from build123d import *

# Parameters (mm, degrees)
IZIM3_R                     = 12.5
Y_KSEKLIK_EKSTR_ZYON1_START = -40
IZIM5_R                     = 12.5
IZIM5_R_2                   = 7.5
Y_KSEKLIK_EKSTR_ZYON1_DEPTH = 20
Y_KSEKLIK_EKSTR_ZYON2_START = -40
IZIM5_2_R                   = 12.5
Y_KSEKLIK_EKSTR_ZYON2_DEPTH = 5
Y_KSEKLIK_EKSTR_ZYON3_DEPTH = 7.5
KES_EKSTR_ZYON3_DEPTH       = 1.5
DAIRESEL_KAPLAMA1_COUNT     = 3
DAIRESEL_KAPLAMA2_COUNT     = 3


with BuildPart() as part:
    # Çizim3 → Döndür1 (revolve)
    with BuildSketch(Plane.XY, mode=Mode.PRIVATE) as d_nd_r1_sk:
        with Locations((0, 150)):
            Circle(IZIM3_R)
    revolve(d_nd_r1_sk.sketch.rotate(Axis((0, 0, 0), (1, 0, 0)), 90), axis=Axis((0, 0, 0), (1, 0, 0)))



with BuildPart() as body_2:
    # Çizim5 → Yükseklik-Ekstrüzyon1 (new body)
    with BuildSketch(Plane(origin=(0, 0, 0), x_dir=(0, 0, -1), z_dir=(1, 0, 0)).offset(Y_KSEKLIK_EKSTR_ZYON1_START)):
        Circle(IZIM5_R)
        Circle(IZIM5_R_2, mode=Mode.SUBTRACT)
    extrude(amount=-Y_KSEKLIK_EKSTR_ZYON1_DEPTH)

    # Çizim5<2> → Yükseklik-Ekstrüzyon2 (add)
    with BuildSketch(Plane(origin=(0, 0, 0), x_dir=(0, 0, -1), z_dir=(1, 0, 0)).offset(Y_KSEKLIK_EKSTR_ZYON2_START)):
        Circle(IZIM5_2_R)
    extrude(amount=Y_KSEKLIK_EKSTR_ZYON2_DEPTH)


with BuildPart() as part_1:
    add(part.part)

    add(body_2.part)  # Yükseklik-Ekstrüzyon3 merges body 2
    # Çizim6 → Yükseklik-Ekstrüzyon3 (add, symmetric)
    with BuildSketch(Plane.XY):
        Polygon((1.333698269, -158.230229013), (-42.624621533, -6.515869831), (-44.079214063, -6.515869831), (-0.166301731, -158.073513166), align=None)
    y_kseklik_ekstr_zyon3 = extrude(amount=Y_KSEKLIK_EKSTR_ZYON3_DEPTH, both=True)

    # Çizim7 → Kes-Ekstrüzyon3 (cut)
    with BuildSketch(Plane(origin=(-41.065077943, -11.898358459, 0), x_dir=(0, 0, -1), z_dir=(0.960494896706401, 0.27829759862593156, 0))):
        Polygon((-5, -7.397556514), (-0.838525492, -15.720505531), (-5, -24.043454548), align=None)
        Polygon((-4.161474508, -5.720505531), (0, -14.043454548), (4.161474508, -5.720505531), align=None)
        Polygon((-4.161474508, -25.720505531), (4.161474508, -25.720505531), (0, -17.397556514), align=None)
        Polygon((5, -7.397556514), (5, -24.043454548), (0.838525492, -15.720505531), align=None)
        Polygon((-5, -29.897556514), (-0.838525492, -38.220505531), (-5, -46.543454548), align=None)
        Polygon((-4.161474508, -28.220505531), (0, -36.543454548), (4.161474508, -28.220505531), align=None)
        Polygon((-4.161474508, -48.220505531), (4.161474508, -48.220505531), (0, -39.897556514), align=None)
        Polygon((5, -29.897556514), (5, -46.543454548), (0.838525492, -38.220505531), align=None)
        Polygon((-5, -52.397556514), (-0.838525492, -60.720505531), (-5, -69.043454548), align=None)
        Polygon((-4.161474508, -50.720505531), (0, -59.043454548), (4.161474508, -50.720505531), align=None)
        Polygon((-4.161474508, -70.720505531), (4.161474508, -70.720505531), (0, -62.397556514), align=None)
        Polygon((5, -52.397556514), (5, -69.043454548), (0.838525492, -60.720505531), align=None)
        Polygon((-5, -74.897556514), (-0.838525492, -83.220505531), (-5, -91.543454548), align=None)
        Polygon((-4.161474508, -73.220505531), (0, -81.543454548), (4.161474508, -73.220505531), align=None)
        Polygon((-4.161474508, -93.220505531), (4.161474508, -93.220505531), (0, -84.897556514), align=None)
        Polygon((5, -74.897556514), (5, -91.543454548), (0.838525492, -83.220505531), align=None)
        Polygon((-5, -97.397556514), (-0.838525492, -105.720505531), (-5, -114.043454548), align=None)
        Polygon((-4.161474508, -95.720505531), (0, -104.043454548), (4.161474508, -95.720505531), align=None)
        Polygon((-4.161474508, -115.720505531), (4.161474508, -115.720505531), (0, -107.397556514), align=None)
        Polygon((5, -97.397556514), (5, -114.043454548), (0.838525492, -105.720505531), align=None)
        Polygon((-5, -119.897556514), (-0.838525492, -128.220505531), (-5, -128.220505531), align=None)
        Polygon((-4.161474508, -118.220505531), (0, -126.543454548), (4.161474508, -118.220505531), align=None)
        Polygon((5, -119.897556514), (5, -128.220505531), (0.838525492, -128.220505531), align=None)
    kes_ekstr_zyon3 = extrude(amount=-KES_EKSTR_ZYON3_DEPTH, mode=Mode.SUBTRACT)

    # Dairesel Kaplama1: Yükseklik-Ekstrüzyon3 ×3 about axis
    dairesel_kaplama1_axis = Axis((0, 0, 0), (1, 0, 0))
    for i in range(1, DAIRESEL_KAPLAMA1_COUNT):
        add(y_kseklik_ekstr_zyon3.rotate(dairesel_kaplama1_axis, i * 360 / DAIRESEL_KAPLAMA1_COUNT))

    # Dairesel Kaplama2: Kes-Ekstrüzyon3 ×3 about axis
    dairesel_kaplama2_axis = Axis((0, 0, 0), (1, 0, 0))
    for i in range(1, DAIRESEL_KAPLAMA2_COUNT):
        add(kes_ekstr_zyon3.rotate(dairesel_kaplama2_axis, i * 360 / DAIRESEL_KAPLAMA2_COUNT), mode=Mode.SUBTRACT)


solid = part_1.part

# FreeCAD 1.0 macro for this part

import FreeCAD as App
import Part
import Sketcher

V = App.Vector

doc = App.newDocument("Part")
body = doc.addObject("PartDesign::Body", "Body")

# Sketch on XY plane
sketch1 = body.newObject("Sketcher::SketchObject", "Sketch")
sketch1.AttachmentSupport = (doc.getObject("XY_Plane"), [""])
sketch1.MapMode = "FlatFace"
sketch1.addGeometry(Part.Circle(V(0, 150, 0), V(0, 0, 1), 12), False)
sketch1.addConstraint(Sketcher.Constraint("PointOnObject", 0, 3, -2))
sketch1.addConstraint(Sketcher.Constraint("Diameter", 0, 25.0))
sketch1.addConstraint(Sketcher.Constraint("DistanceY", -1, 1, 0, 3, 150.0))
revolution = body.newObject("PartDesign::Revolution", "Revolution")
revolution.Profile = sketch1
revolution.ReferenceAxis = (sketch1, ["H_Axis"])
revolution.Angle = 360
body2 = doc.addObject("PartDesign::Body", "Body001")

# Sketch on YZ plane
sketch2 = body2.newObject("Sketcher::SketchObject", "Sketch001")
sketch2.AttachmentSupport = (doc.getObject("YZ_Plane001"), [""])
sketch2.MapMode = "FlatFace"
sketch2.AttachmentOffset = App.Placement(V(0, 0, -40), App.Rotation())
sketch2.addGeometry(Part.Circle(V(0, 0, 0), V(0, 0, 1), 12), False)
sketch2.addGeometry(Part.Circle(V(0, 0, 0), V(0, 0, 1), 8), False)
sketch2.addConstraint(Sketcher.Constraint("Coincident", 0, 3, -1, 1))
sketch2.addConstraint(Sketcher.Constraint("Coincident", 1, 3, -1, 1))
sketch2.addConstraint(Sketcher.Constraint("Diameter", 0, 25.0))
sketch2.addConstraint(Sketcher.Constraint("Diameter", 1, 15.0))
pad1 = body2.newObject("PartDesign::Pad", "Pad")
pad1.Profile = sketch2
pad1.Length = 20
pad1.Reversed = True

# Sketch on YZ plane
sketch3 = body2.newObject("Sketcher::SketchObject", "Sketch002")
sketch3.AttachmentSupport = (doc.getObject("YZ_Plane001"), [""])
sketch3.MapMode = "FlatFace"
sketch3.AttachmentOffset = App.Placement(V(0, 0, -40), App.Rotation())
sketch3.addGeometry(Part.Circle(V(0, 0, 0), V(0, 0, 1), 12), False)
sketch3.addConstraint(Sketcher.Constraint("Coincident", 0, 3, -1, 1))
sketch3.addConstraint(Sketcher.Constraint("Diameter", 0, 25.0))
pad2 = body2.newObject("PartDesign::Pad", "Pad001")
pad2.Profile = sketch3
pad2.Length = 5
body.AllowCompound = True
doc.recompute()

boolean = body.newObject("PartDesign::Boolean", "Boolean")
boolean.Type = "Fuse"
boolean.addObjects([body2])

# Sketch on XY plane
sketch4 = body.newObject("Sketcher::SketchObject", "Sketch003")
sketch4.AttachmentSupport = (doc.getObject("XY_Plane"), [""])
sketch4.MapMode = "FlatFace"
sketch4.addGeometry(Part.LineSegment(V(1.3, -158.2, 0), V(-42.6, -6.5, 0)), False)
sketch4.addGeometry(Part.LineSegment(V(-42.6, -6.5, 0), V(-44.1, -6.5, 0)), False)
sketch4.addGeometry(Part.LineSegment(V(-44.1, -6.5, 0), V(-0.2, -158.1, 0)), False)
sketch4.addGeometry(Part.LineSegment(V(-0.2, -158.1, 0), V(1.3, -158.2, 0)), False)
sketch4.addConstraint(Sketcher.Constraint("Coincident", 0, 2, 1, 1))
sketch4.addConstraint(Sketcher.Constraint("Coincident", 1, 2, 2, 1))
sketch4.addConstraint(Sketcher.Constraint("Coincident", 2, 2, 3, 1))
sketch4.addConstraint(Sketcher.Constraint("Coincident", 3, 2, 0, 1))
sketch4.addConstraint(Sketcher.Constraint("Horizontal", 1))
sketch4.addConstraint(Sketcher.Constraint("Parallel", 0, 2))
sketch4.addConstraint(Sketcher.Constraint("DistanceX", 2, 2, 3, 2, 1.5))
sketch4.addConstraint(Sketcher.Constraint("Distance", 2, 157.791201))
sketch4.addConstraint(Sketcher.Constraint("DistanceX", 2, 2, -1, 1, 0.166302))
sketch4.addConstraint(Sketcher.Constraint("DistanceX", 1, 2, 1, 1, 1.454593))
sketch4.addConstraint(Sketcher.Constraint("DistanceX", 0, 2, -1, 1, 42.624622))
sketch4.addConstraint(Sketcher.Constraint("DistanceY", 0, 2, -1, 1, 6.51587))
pad3 = body.newObject("PartDesign::Pad", "Pad002")
pad3.Profile = sketch4
pad3.Length = 15
pad3.Midplane = True

# Sketch on an angled plane
sketch5 = body.newObject("Sketcher::SketchObject", "Sketch004")
sketch5.Placement = App.Placement(V(-41.065078, -11.898358, 0), App.Rotation(V(0, 0, -1), V(-0.278297599, 0.960494897, 0), V(0.960494897, 0.278297599, 0), "ZXY"))
sketch5.addGeometry(Part.LineSegment(V(-0.8, -15.7, 0), V(-5, -7.4, 0)), False)
sketch5.addGeometry(Part.LineSegment(V(-5, -7.4, 0), V(-5, -24, 0)), False)
sketch5.addGeometry(Part.LineSegment(V(-5, -24, 0), V(-0.8, -15.7, 0)), False)
sketch5.addGeometry(Part.LineSegment(V(-4.2, -5.7, 0), V(0, -14, 0)), False)
sketch5.addGeometry(Part.LineSegment(V(0, -14, 0), V(4.2, -5.7, 0)), False)
sketch5.addGeometry(Part.LineSegment(V(4.2, -5.7, 0), V(-4.2, -5.7, 0)), False)
sketch5.addGeometry(Part.LineSegment(V(-4.2, -25.7, 0), V(4.2, -25.7, 0)), False)
sketch5.addGeometry(Part.LineSegment(V(4.2, -25.7, 0), V(0, -17.4, 0)), False)
sketch5.addGeometry(Part.LineSegment(V(0, -17.4, 0), V(-4.2, -25.7, 0)), False)
sketch5.addGeometry(Part.LineSegment(V(5, -24, 0), V(5, -7.4, 0)), False)
sketch5.addGeometry(Part.LineSegment(V(5, -7.4, 0), V(0.8, -15.7, 0)), False)
sketch5.addGeometry(Part.LineSegment(V(0.8, -15.7, 0), V(5, -24, 0)), False)
sketch5.addGeometry(Part.LineSegment(V(-0.8, -38.2, 0), V(-5, -29.9, 0)), False)
sketch5.addGeometry(Part.LineSegment(V(-5, -29.9, 0), V(-5, -46.5, 0)), False)
sketch5.addGeometry(Part.LineSegment(V(-5, -46.5, 0), V(-0.8, -38.2, 0)), False)
sketch5.addGeometry(Part.LineSegment(V(-4.2, -28.2, 0), V(0, -36.5, 0)), False)
sketch5.addGeometry(Part.LineSegment(V(0, -36.5, 0), V(4.2, -28.2, 0)), False)
sketch5.addGeometry(Part.LineSegment(V(4.2, -28.2, 0), V(-4.2, -28.2, 0)), False)
sketch5.addGeometry(Part.LineSegment(V(-4.2, -48.2, 0), V(4.2, -48.2, 0)), False)
sketch5.addGeometry(Part.LineSegment(V(4.2, -48.2, 0), V(0, -39.9, 0)), False)
sketch5.addGeometry(Part.LineSegment(V(0, -39.9, 0), V(-4.2, -48.2, 0)), False)
sketch5.addGeometry(Part.LineSegment(V(5, -46.5, 0), V(5, -29.9, 0)), False)
sketch5.addGeometry(Part.LineSegment(V(5, -29.9, 0), V(0.8, -38.2, 0)), False)
sketch5.addGeometry(Part.LineSegment(V(0.8, -38.2, 0), V(5, -46.5, 0)), False)
sketch5.addGeometry(Part.LineSegment(V(-0.8, -60.7, 0), V(-5, -52.4, 0)), False)
sketch5.addGeometry(Part.LineSegment(V(-5, -52.4, 0), V(-5, -69, 0)), False)
sketch5.addGeometry(Part.LineSegment(V(-5, -69, 0), V(-0.8, -60.7, 0)), False)
sketch5.addGeometry(Part.LineSegment(V(-4.2, -50.7, 0), V(0, -59, 0)), False)
sketch5.addGeometry(Part.LineSegment(V(0, -59, 0), V(4.2, -50.7, 0)), False)
sketch5.addGeometry(Part.LineSegment(V(4.2, -50.7, 0), V(-4.2, -50.7, 0)), False)
sketch5.addGeometry(Part.LineSegment(V(-4.2, -70.7, 0), V(4.2, -70.7, 0)), False)
sketch5.addGeometry(Part.LineSegment(V(4.2, -70.7, 0), V(0, -62.4, 0)), False)
sketch5.addGeometry(Part.LineSegment(V(0, -62.4, 0), V(-4.2, -70.7, 0)), False)
sketch5.addGeometry(Part.LineSegment(V(5, -69, 0), V(5, -52.4, 0)), False)
sketch5.addGeometry(Part.LineSegment(V(5, -52.4, 0), V(0.8, -60.7, 0)), False)
sketch5.addGeometry(Part.LineSegment(V(0.8, -60.7, 0), V(5, -69, 0)), False)
sketch5.addGeometry(Part.LineSegment(V(-0.8, -83.2, 0), V(-5, -74.9, 0)), False)
sketch5.addGeometry(Part.LineSegment(V(-5, -74.9, 0), V(-5, -91.5, 0)), False)
sketch5.addGeometry(Part.LineSegment(V(-5, -91.5, 0), V(-0.8, -83.2, 0)), False)
sketch5.addGeometry(Part.LineSegment(V(-4.2, -73.2, 0), V(0, -81.5, 0)), False)
sketch5.addGeometry(Part.LineSegment(V(0, -81.5, 0), V(4.2, -73.2, 0)), False)
sketch5.addGeometry(Part.LineSegment(V(4.2, -73.2, 0), V(-4.2, -73.2, 0)), False)
sketch5.addGeometry(Part.LineSegment(V(-4.2, -93.2, 0), V(4.2, -93.2, 0)), False)
sketch5.addGeometry(Part.LineSegment(V(4.2, -93.2, 0), V(0, -84.9, 0)), False)
sketch5.addGeometry(Part.LineSegment(V(0, -84.9, 0), V(-4.2, -93.2, 0)), False)
sketch5.addGeometry(Part.LineSegment(V(5, -91.5, 0), V(5, -74.9, 0)), False)
sketch5.addGeometry(Part.LineSegment(V(5, -74.9, 0), V(0.8, -83.2, 0)), False)
sketch5.addGeometry(Part.LineSegment(V(0.8, -83.2, 0), V(5, -91.5, 0)), False)
sketch5.addGeometry(Part.LineSegment(V(-0.8, -105.7, 0), V(-5, -97.4, 0)), False)
sketch5.addGeometry(Part.LineSegment(V(-5, -97.4, 0), V(-5, -114, 0)), False)
sketch5.addGeometry(Part.LineSegment(V(-5, -114, 0), V(-0.8, -105.7, 0)), False)
sketch5.addGeometry(Part.LineSegment(V(-4.2, -95.7, 0), V(0, -104, 0)), False)
sketch5.addGeometry(Part.LineSegment(V(0, -104, 0), V(4.2, -95.7, 0)), False)
sketch5.addGeometry(Part.LineSegment(V(4.2, -95.7, 0), V(-4.2, -95.7, 0)), False)
sketch5.addGeometry(Part.LineSegment(V(-4.2, -115.7, 0), V(4.2, -115.7, 0)), False)
sketch5.addGeometry(Part.LineSegment(V(4.2, -115.7, 0), V(0, -107.4, 0)), False)
sketch5.addGeometry(Part.LineSegment(V(0, -107.4, 0), V(-4.2, -115.7, 0)), False)
sketch5.addGeometry(Part.LineSegment(V(5, -114, 0), V(5, -97.4, 0)), False)
sketch5.addGeometry(Part.LineSegment(V(5, -97.4, 0), V(0.8, -105.7, 0)), False)
sketch5.addGeometry(Part.LineSegment(V(0.8, -105.7, 0), V(5, -114, 0)), False)
sketch5.addGeometry(Part.LineSegment(V(-0.8, -128.2, 0), V(-5, -119.9, 0)), False)
sketch5.addGeometry(Part.LineSegment(V(-5, -119.9, 0), V(-5, -128.2, 0)), False)
sketch5.addGeometry(Part.LineSegment(V(-5, -128.2, 0), V(-0.8, -128.2, 0)), False)
sketch5.addGeometry(Part.LineSegment(V(-4.2, -118.2, 0), V(0, -126.5, 0)), False)
sketch5.addGeometry(Part.LineSegment(V(0, -126.5, 0), V(4.2, -118.2, 0)), False)
sketch5.addGeometry(Part.LineSegment(V(4.2, -118.2, 0), V(-4.2, -118.2, 0)), False)
sketch5.addGeometry(Part.LineSegment(V(5, -128.2, 0), V(5, -119.9, 0)), False)
sketch5.addGeometry(Part.LineSegment(V(5, -119.9, 0), V(0.8, -128.2, 0)), False)
sketch5.addGeometry(Part.LineSegment(V(0.8, -128.2, 0), V(5, -128.2, 0)), False)
sketch5.addConstraint(Sketcher.Constraint("Coincident", 0, 2, 1, 1))
sketch5.addConstraint(Sketcher.Constraint("Coincident", 1, 2, 2, 1))
sketch5.addConstraint(Sketcher.Constraint("Coincident", 2, 2, 0, 1))
sketch5.addConstraint(Sketcher.Constraint("Coincident", 3, 2, 4, 1))
sketch5.addConstraint(Sketcher.Constraint("Coincident", 4, 2, 5, 1))
sketch5.addConstraint(Sketcher.Constraint("Coincident", 5, 2, 3, 1))
sketch5.addConstraint(Sketcher.Constraint("Coincident", 6, 2, 7, 1))
sketch5.addConstraint(Sketcher.Constraint("Coincident", 7, 2, 8, 1))
sketch5.addConstraint(Sketcher.Constraint("Coincident", 8, 2, 6, 1))
sketch5.addConstraint(Sketcher.Constraint("Coincident", 9, 2, 10, 1))
sketch5.addConstraint(Sketcher.Constraint("Coincident", 10, 2, 11, 1))
sketch5.addConstraint(Sketcher.Constraint("Coincident", 11, 2, 9, 1))
sketch5.addConstraint(Sketcher.Constraint("Coincident", 12, 2, 13, 1))
sketch5.addConstraint(Sketcher.Constraint("Coincident", 13, 2, 14, 1))
sketch5.addConstraint(Sketcher.Constraint("Coincident", 14, 2, 12, 1))
sketch5.addConstraint(Sketcher.Constraint("Coincident", 15, 2, 16, 1))
sketch5.addConstraint(Sketcher.Constraint("Coincident", 16, 2, 17, 1))
sketch5.addConstraint(Sketcher.Constraint("Coincident", 17, 2, 15, 1))
sketch5.addConstraint(Sketcher.Constraint("Coincident", 18, 2, 19, 1))
sketch5.addConstraint(Sketcher.Constraint("Coincident", 19, 2, 20, 1))
sketch5.addConstraint(Sketcher.Constraint("Coincident", 20, 2, 18, 1))
sketch5.addConstraint(Sketcher.Constraint("Coincident", 21, 2, 22, 1))
sketch5.addConstraint(Sketcher.Constraint("Coincident", 22, 2, 23, 1))
sketch5.addConstraint(Sketcher.Constraint("Coincident", 23, 2, 21, 1))
sketch5.addConstraint(Sketcher.Constraint("Coincident", 24, 2, 25, 1))
sketch5.addConstraint(Sketcher.Constraint("Coincident", 25, 2, 26, 1))
sketch5.addConstraint(Sketcher.Constraint("Coincident", 26, 2, 24, 1))
sketch5.addConstraint(Sketcher.Constraint("Coincident", 27, 2, 28, 1))
sketch5.addConstraint(Sketcher.Constraint("Coincident", 28, 2, 29, 1))
sketch5.addConstraint(Sketcher.Constraint("Coincident", 29, 2, 27, 1))
sketch5.addConstraint(Sketcher.Constraint("Coincident", 30, 2, 31, 1))
sketch5.addConstraint(Sketcher.Constraint("Coincident", 31, 2, 32, 1))
sketch5.addConstraint(Sketcher.Constraint("Coincident", 32, 2, 30, 1))
sketch5.addConstraint(Sketcher.Constraint("Coincident", 33, 2, 34, 1))
sketch5.addConstraint(Sketcher.Constraint("Coincident", 34, 2, 35, 1))
sketch5.addConstraint(Sketcher.Constraint("Coincident", 35, 2, 33, 1))
sketch5.addConstraint(Sketcher.Constraint("Coincident", 36, 2, 37, 1))
sketch5.addConstraint(Sketcher.Constraint("Coincident", 37, 2, 38, 1))
sketch5.addConstraint(Sketcher.Constraint("Coincident", 38, 2, 36, 1))
sketch5.addConstraint(Sketcher.Constraint("Coincident", 39, 2, 40, 1))
sketch5.addConstraint(Sketcher.Constraint("Coincident", 40, 2, 41, 1))
sketch5.addConstraint(Sketcher.Constraint("Coincident", 41, 2, 39, 1))
sketch5.addConstraint(Sketcher.Constraint("Coincident", 42, 2, 43, 1))
sketch5.addConstraint(Sketcher.Constraint("Coincident", 43, 2, 44, 1))
sketch5.addConstraint(Sketcher.Constraint("Coincident", 44, 2, 42, 1))
sketch5.addConstraint(Sketcher.Constraint("Coincident", 45, 2, 46, 1))
sketch5.addConstraint(Sketcher.Constraint("Coincident", 46, 2, 47, 1))
sketch5.addConstraint(Sketcher.Constraint("Coincident", 47, 2, 45, 1))
sketch5.addConstraint(Sketcher.Constraint("Coincident", 48, 2, 49, 1))
sketch5.addConstraint(Sketcher.Constraint("Coincident", 49, 2, 50, 1))
sketch5.addConstraint(Sketcher.Constraint("Coincident", 50, 2, 48, 1))
sketch5.addConstraint(Sketcher.Constraint("Coincident", 51, 2, 52, 1))
sketch5.addConstraint(Sketcher.Constraint("Coincident", 52, 2, 53, 1))
sketch5.addConstraint(Sketcher.Constraint("Coincident", 53, 2, 51, 1))
sketch5.addConstraint(Sketcher.Constraint("Coincident", 54, 2, 55, 1))
sketch5.addConstraint(Sketcher.Constraint("Coincident", 55, 2, 56, 1))
sketch5.addConstraint(Sketcher.Constraint("Coincident", 56, 2, 54, 1))
sketch5.addConstraint(Sketcher.Constraint("Coincident", 57, 2, 58, 1))
sketch5.addConstraint(Sketcher.Constraint("Coincident", 58, 2, 59, 1))
sketch5.addConstraint(Sketcher.Constraint("Coincident", 59, 2, 57, 1))
sketch5.addConstraint(Sketcher.Constraint("Coincident", 60, 2, 61, 1))
sketch5.addConstraint(Sketcher.Constraint("Coincident", 61, 2, 62, 1))
sketch5.addConstraint(Sketcher.Constraint("Coincident", 62, 2, 60, 1))
sketch5.addConstraint(Sketcher.Constraint("Coincident", 63, 2, 64, 1))
sketch5.addConstraint(Sketcher.Constraint("Coincident", 64, 2, 65, 1))
sketch5.addConstraint(Sketcher.Constraint("Coincident", 65, 2, 63, 1))
sketch5.addConstraint(Sketcher.Constraint("Coincident", 66, 2, 67, 1))
sketch5.addConstraint(Sketcher.Constraint("Coincident", 67, 2, 68, 1))
sketch5.addConstraint(Sketcher.Constraint("Coincident", 68, 2, 66, 1))
sketch5.addConstraint(Sketcher.Constraint("Vertical", 1))
sketch5.addConstraint(Sketcher.Constraint("Horizontal", 5))
sketch5.addConstraint(Sketcher.Constraint("Horizontal", 6))
sketch5.addConstraint(Sketcher.Constraint("Vertical", 9))
sketch5.addConstraint(Sketcher.Constraint("Vertical", 13))
sketch5.addConstraint(Sketcher.Constraint("Horizontal", 17))
sketch5.addConstraint(Sketcher.Constraint("Horizontal", 18))
sketch5.addConstraint(Sketcher.Constraint("Vertical", 21))
sketch5.addConstraint(Sketcher.Constraint("Vertical", 25))
sketch5.addConstraint(Sketcher.Constraint("Horizontal", 29))
sketch5.addConstraint(Sketcher.Constraint("Horizontal", 30))
sketch5.addConstraint(Sketcher.Constraint("Vertical", 33))
sketch5.addConstraint(Sketcher.Constraint("Vertical", 37))
sketch5.addConstraint(Sketcher.Constraint("Horizontal", 41))
sketch5.addConstraint(Sketcher.Constraint("Horizontal", 42))
sketch5.addConstraint(Sketcher.Constraint("Vertical", 45))
sketch5.addConstraint(Sketcher.Constraint("Vertical", 49))
sketch5.addConstraint(Sketcher.Constraint("Horizontal", 53))
sketch5.addConstraint(Sketcher.Constraint("Horizontal", 54))
sketch5.addConstraint(Sketcher.Constraint("Vertical", 57))
sketch5.addConstraint(Sketcher.Constraint("Vertical", 61))
sketch5.addConstraint(Sketcher.Constraint("Horizontal", 62))
sketch5.addConstraint(Sketcher.Constraint("Horizontal", 65))
sketch5.addConstraint(Sketcher.Constraint("Vertical", 66))
sketch5.addConstraint(Sketcher.Constraint("Horizontal", 68))
sketch5.addConstraint(Sketcher.Constraint("Symmetric", 0, 2, 9, 2, -2))
sketch5.addConstraint(Sketcher.Constraint("Symmetric", 2, 2, 10, 2, -2))
sketch5.addConstraint(Sketcher.Constraint("Symmetric", 12, 2, 21, 2, -2))
sketch5.addConstraint(Sketcher.Constraint("Symmetric", 14, 2, 22, 2, -2))
sketch5.addConstraint(Sketcher.Constraint("Symmetric", 24, 2, 33, 2, -2))
sketch5.addConstraint(Sketcher.Constraint("Symmetric", 26, 2, 34, 2, -2))
sketch5.addConstraint(Sketcher.Constraint("Symmetric", 36, 2, 45, 2, -2))
sketch5.addConstraint(Sketcher.Constraint("Symmetric", 38, 2, 46, 2, -2))
sketch5.addConstraint(Sketcher.Constraint("Symmetric", 48, 2, 57, 2, -2))
sketch5.addConstraint(Sketcher.Constraint("Symmetric", 50, 2, 58, 2, -2))
sketch5.addConstraint(Sketcher.Constraint("Symmetric", 60, 2, 66, 2, -2))
sketch5.addConstraint(Sketcher.Constraint("Symmetric", 62, 2, 67, 2, -2))
sketch5.addConstraint(Sketcher.Constraint("PointOnObject", 3, 2, -2))
sketch5.addConstraint(Sketcher.Constraint("PointOnObject", 7, 2, -2))
sketch5.addConstraint(Sketcher.Constraint("PointOnObject", 15, 2, -2))
sketch5.addConstraint(Sketcher.Constraint("PointOnObject", 19, 2, -2))
sketch5.addConstraint(Sketcher.Constraint("PointOnObject", 27, 2, -2))
sketch5.addConstraint(Sketcher.Constraint("PointOnObject", 31, 2, -2))
sketch5.addConstraint(Sketcher.Constraint("PointOnObject", 39, 2, -2))
sketch5.addConstraint(Sketcher.Constraint("PointOnObject", 43, 2, -2))
sketch5.addConstraint(Sketcher.Constraint("PointOnObject", 51, 2, -2))
sketch5.addConstraint(Sketcher.Constraint("PointOnObject", 55, 2, -2))
sketch5.addConstraint(Sketcher.Constraint("PointOnObject", 63, 2, -2))
sketch5.addConstraint(Sketcher.Constraint("Parallel", 0, 3))
sketch5.addConstraint(Sketcher.Constraint("Parallel", 2, 4))
sketch5.addConstraint(Sketcher.Constraint("Parallel", 3, 7))
sketch5.addConstraint(Sketcher.Constraint("Parallel", 4, 8))
sketch5.addConstraint(Sketcher.Constraint("Parallel", 8, 10))
sketch5.addConstraint(Sketcher.Constraint("Parallel", 7, 11))
sketch5.addConstraint(Sketcher.Constraint("Parallel", 11, 12))
sketch5.addConstraint(Sketcher.Constraint("Parallel", 10, 14))
sketch5.addConstraint(Sketcher.Constraint("Parallel", 12, 15))
sketch5.addConstraint(Sketcher.Constraint("Parallel", 14, 16))
sketch5.addConstraint(Sketcher.Constraint("Parallel", 15, 19))
sketch5.addConstraint(Sketcher.Constraint("Parallel", 16, 20))
sketch5.addConstraint(Sketcher.Constraint("Parallel", 19, 23))
sketch5.addConstraint(Sketcher.Constraint("Parallel", 23, 24))
sketch5.addConstraint(Sketcher.Constraint("Parallel", 22, 26))
sketch5.addConstraint(Sketcher.Constraint("Parallel", 24, 27))
sketch5.addConstraint(Sketcher.Constraint("Parallel", 26, 28))
sketch5.addConstraint(Sketcher.Constraint("Parallel", 27, 31))
sketch5.addConstraint(Sketcher.Constraint("Parallel", 28, 32))
sketch5.addConstraint(Sketcher.Constraint("Parallel", 31, 35))
sketch5.addConstraint(Sketcher.Constraint("Parallel", 35, 36))
sketch5.addConstraint(Sketcher.Constraint("Parallel", 34, 38))
sketch5.addConstraint(Sketcher.Constraint("Parallel", 36, 39))
sketch5.addConstraint(Sketcher.Constraint("Parallel", 38, 40))
sketch5.addConstraint(Sketcher.Constraint("Parallel", 39, 43))
sketch5.addConstraint(Sketcher.Constraint("Parallel", 40, 44))
sketch5.addConstraint(Sketcher.Constraint("Parallel", 43, 47))
sketch5.addConstraint(Sketcher.Constraint("Parallel", 47, 48))
sketch5.addConstraint(Sketcher.Constraint("Parallel", 46, 50))
sketch5.addConstraint(Sketcher.Constraint("Parallel", 48, 51))
sketch5.addConstraint(Sketcher.Constraint("Parallel", 50, 52))
sketch5.addConstraint(Sketcher.Constraint("Parallel", 51, 55))
sketch5.addConstraint(Sketcher.Constraint("Parallel", 52, 56))
sketch5.addConstraint(Sketcher.Constraint("Parallel", 55, 59))
sketch5.addConstraint(Sketcher.Constraint("Parallel", 59, 60))
sketch5.addConstraint(Sketcher.Constraint("Parallel", 60, 63))
sketch5.addConstraint(Sketcher.Constraint("Parallel", 58, 64))
sketch5.addConstraint(Sketcher.Constraint("Vertical", 4, 2, 6, 2))
sketch5.addConstraint(Sketcher.Constraint("Vertical", 1, 2, 12, 2))
sketch5.addConstraint(Sketcher.Constraint("Vertical", 2, 2, 14, 2))
sketch5.addConstraint(Sketcher.Constraint("Vertical", 6, 2, 16, 2))
sketch5.addConstraint(Sketcher.Constraint("Vertical", 16, 2, 18, 2))
sketch5.addConstraint(Sketcher.Constraint("Vertical", 13, 2, 24, 2))
sketch5.addConstraint(Sketcher.Constraint("Vertical", 14, 2, 26, 2))
sketch5.addConstraint(Sketcher.Constraint("Vertical", 18, 2, 28, 2))
sketch5.addConstraint(Sketcher.Constraint("Vertical", 28, 2, 30, 2))
sketch5.addConstraint(Sketcher.Constraint("Vertical", 25, 2, 36, 2))
sketch5.addConstraint(Sketcher.Constraint("Vertical", 26, 2, 38, 2))
sketch5.addConstraint(Sketcher.Constraint("Vertical", 30, 2, 40, 2))
sketch5.addConstraint(Sketcher.Constraint("Vertical", 40, 2, 42, 2))
sketch5.addConstraint(Sketcher.Constraint("Vertical", 37, 2, 48, 2))
sketch5.addConstraint(Sketcher.Constraint("Vertical", 38, 2, 50, 2))
sketch5.addConstraint(Sketcher.Constraint("Vertical", 42, 2, 52, 2))
sketch5.addConstraint(Sketcher.Constraint("Vertical", 52, 2, 54, 2))
sketch5.addConstraint(Sketcher.Constraint("Vertical", 49, 2, 60, 2))
sketch5.addConstraint(Sketcher.Constraint("Vertical", 50, 2, 62, 2))
sketch5.addConstraint(Sketcher.Constraint("Vertical", 54, 2, 64, 2))
sketch5.addConstraint(Sketcher.Constraint("Equal", 65, 61))
sketch5.addConstraint(Sketcher.Constraint("Equal", 2, 3))
sketch5.addConstraint(Sketcher.Constraint("DistanceX", 0, 2, -1, 1, 5.0))
sketch5.addConstraint(Sketcher.Constraint("DistanceY", 1, 2, 1, 1, 16.645898))
sketch5.addConstraint(Sketcher.Constraint("DistanceY", 0, 2, -1, 1, 7.397557))
sketch5.addConstraint(Sketcher.Constraint("DistanceY", 3, 2, -1, 1, 14.043455))
sketch5.addConstraint(Sketcher.Constraint("DistanceY", 6, 2, -1, 1, 25.720506))
sketch5.addConstraint(Sketcher.Constraint("DistanceY", 12, 2, -1, 1, 29.897557))
sketch5.addConstraint(Sketcher.Constraint("DistanceY", 15, 2, -1, 1, 36.543455))
sketch5.addConstraint(Sketcher.Constraint("DistanceY", 18, 2, -1, 1, 48.220506))
sketch5.addConstraint(Sketcher.Constraint("DistanceY", 24, 2, -1, 1, 52.397557))
sketch5.addConstraint(Sketcher.Constraint("DistanceY", 27, 2, -1, 1, 59.043455))
sketch5.addConstraint(Sketcher.Constraint("DistanceY", 30, 2, -1, 1, 70.720506))
sketch5.addConstraint(Sketcher.Constraint("DistanceY", 36, 2, -1, 1, 74.897557))
sketch5.addConstraint(Sketcher.Constraint("DistanceY", 39, 2, -1, 1, 81.543455))
sketch5.addConstraint(Sketcher.Constraint("DistanceY", 42, 2, -1, 1, 93.220506))
sketch5.addConstraint(Sketcher.Constraint("DistanceY", 48, 2, -1, 1, 97.397557))
sketch5.addConstraint(Sketcher.Constraint("DistanceY", 51, 2, -1, 1, 104.043455))
sketch5.addConstraint(Sketcher.Constraint("DistanceY", 54, 2, -1, 1, 115.720506))
sketch5.addConstraint(Sketcher.Constraint("DistanceY", 60, 2, -1, 1, 119.897557))
sketch5.addConstraint(Sketcher.Constraint("DistanceY", 63, 2, -1, 1, 126.543455))
pocket1 = body.newObject("PartDesign::Pocket", "Pocket")
pocket1.Profile = sketch5
pocket1.Length = 1.5
doc.recompute()

polarpattern = body.newObject("PartDesign::PolarPattern", "PolarPattern")
polarpattern.Originals = [pad3]
polarpattern.Axis = (doc.getObject("X_Axis"), [""])
polarpattern.Angle = 360
polarpattern.Occurrences = 3
body.Tip = polarpattern
doc.recompute()

polarpattern2 = body.newObject("PartDesign::PolarPattern", "PolarPattern001")
polarpattern2.Originals = [pocket1]
polarpattern2.Axis = (doc.getObject("X_Axis"), [""])
polarpattern2.Angle = 360
polarpattern2.Occurrences = 3
body.Tip = polarpattern2

doc.recompute()
